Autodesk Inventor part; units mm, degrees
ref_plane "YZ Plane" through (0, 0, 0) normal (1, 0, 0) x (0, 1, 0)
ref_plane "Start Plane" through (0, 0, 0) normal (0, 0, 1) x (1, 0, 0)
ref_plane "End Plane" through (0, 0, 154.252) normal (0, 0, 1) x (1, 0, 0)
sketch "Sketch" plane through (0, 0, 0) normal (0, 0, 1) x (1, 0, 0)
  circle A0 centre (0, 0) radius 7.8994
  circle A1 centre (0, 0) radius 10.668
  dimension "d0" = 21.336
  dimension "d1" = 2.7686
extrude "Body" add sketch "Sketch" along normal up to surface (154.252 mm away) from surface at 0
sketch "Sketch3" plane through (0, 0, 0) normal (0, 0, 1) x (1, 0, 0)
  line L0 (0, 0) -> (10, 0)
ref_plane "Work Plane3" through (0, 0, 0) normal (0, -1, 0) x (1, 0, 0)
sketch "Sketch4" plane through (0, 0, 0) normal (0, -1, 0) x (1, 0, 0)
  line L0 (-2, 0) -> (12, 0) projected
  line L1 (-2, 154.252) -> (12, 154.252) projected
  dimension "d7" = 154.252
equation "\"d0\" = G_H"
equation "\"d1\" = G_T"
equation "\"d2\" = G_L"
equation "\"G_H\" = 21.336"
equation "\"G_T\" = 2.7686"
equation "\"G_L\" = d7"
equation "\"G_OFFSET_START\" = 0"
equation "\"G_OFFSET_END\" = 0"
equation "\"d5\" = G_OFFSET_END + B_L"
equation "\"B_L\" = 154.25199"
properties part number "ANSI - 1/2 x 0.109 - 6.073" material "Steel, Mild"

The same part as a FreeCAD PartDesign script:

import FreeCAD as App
import Part
import Sketcher

V = App.Vector
Q = App.Units.Quantity

doc = App.newDocument("Part")
body = doc.addObject("PartDesign::Body", "Body")

# Sketch on XY plane
sketch1 = doc.addObject("Sketcher::SketchObject", "Sketch")
body.addObject(sketch1)
sketch1.AttachmentSupport = (doc.XY_Plane, [""])
sketch1.MapMode = "FlatFace"
sketch1.addGeometry([
    Part.Circle(V(0, 0, 0), V(0, 0, 1), 11),
    Part.Circle(V(0, 0, 0), V(0, 0, 1), 8),
], False)
sketch1.addConstraint([
    Sketcher.Constraint("Coincident", 0, 3, -1, 1),
    Sketcher.Constraint("Coincident", 1, 3, -1, 1),
    Sketcher.Constraint("Diameter", 0, Q("0.84 in")),
    Sketcher.Constraint("Diameter", 1, Q("0.622 in")),
])
pad1 = doc.addObject("PartDesign::Pad", "Pad")
body.addObject(pad1)
pad1.Profile = sketch1
pad1.Length = 154.252

doc.recompute()
